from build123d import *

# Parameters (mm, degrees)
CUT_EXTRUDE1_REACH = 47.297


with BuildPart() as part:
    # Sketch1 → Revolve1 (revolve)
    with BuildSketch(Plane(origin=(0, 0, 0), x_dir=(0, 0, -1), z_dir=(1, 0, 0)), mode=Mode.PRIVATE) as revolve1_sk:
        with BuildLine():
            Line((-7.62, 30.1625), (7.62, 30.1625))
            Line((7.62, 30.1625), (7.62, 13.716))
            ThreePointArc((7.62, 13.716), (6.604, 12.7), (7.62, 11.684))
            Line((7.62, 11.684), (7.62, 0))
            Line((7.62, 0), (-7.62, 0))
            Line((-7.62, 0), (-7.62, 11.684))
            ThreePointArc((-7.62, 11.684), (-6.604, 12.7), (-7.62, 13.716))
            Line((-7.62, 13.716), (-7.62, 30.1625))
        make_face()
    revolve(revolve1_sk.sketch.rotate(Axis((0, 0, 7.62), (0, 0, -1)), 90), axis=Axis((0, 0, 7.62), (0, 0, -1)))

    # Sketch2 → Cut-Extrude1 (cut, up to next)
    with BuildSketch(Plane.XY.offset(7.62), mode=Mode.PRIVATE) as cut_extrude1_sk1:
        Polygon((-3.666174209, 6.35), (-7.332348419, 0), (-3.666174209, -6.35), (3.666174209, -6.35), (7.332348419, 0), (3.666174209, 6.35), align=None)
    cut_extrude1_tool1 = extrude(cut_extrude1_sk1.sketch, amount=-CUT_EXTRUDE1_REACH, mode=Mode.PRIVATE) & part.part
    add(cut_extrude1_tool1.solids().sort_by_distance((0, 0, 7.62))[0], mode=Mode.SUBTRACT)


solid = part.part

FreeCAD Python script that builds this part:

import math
import FreeCAD as App
import Part
import Sketcher

V = App.Vector
Q = App.Units.Quantity


def add_polygon(sketch, points):
    """Adds a closed chain of lines whose ends are joined by coincident constraints."""
    first, n = sketch.GeometryCount, len(points)
    for a, b in zip(points, points[1:] + points[:1]):
        sketch.addGeometry(Part.LineSegment(App.Vector(*a, 0), App.Vector(*b, 0)), False)
    for i in range(n):
        sketch.addConstraint(Sketcher.Constraint("Coincident", first + i, 2, first + (i + 1) % n, 1))

doc = App.newDocument("Part")
params = doc.addObject("Spreadsheet::Sheet", "Params")
for row, (alias, value) in enumerate([
    ("sketch1_radius", "0.04 in"),
    ("sketch1_height", "0.6 in"),
    ("sketch1_width", "0.46 in"),
    ("revolution_angle", "360 deg"),
], start=1):
    params.set(f"A{row}", alias)
    params.set(f"B{row}", "=" + value)
    params.setAlias(f"B{row}", alias)

body = doc.addObject("PartDesign::Body", "Body")

sketch1 = doc.addObject("Sketcher::SketchObject", "Sketch")
body.addObject(sketch1)
sketch1.AttachmentSupport = (doc.YZ_Plane, [""])
sketch1.MapMode = "FlatFace"
sketch1.addGeometry([
    Part.LineSegment(V(30.2, -7.6, 0), V(30.2, 7.6, 0)),
    Part.LineSegment(V(30.2, 7.6, 0), V(13.7, 7.6, 0)),
    Part.ArcOfCircle(Part.Circle(V(12.7, 7.6, 0), V(0, 0, 1), 1), math.radians(180), math.radians(360)),
    Part.LineSegment(V(11.7, 7.6, 0), V(0, 7.6, 0)),
    Part.LineSegment(V(0, 7.6, 0), V(0, -7.6, 0)),
    Part.LineSegment(V(0, -7.6, 0), V(11.7, -7.6, 0)),
    Part.ArcOfCircle(Part.Circle(V(12.7, -7.6, 0), V(0, 0, 1), 1), math.radians(0), math.radians(180)),
    Part.LineSegment(V(13.7, -7.6, 0), V(30.2, -7.6, 0)),
], False)
sketch1.addConstraint([
    Sketcher.Constraint("Coincident", 0, 2, 1, 1),
    Sketcher.Constraint("Coincident", 1, 2, 2, 2),
    Sketcher.Constraint("Coincident", 2, 1, 3, 1),
    Sketcher.Constraint("Coincident", 3, 2, 4, 1),
    Sketcher.Constraint("Coincident", 4, 2, 5, 1),
    Sketcher.Constraint("Coincident", 5, 2, 6, 2),
    Sketcher.Constraint("Coincident", 6, 1, 7, 1),
    Sketcher.Constraint("Coincident", 7, 2, 0, 1),
    Sketcher.Constraint("Vertical", 0),
    Sketcher.Constraint("Horizontal", 1),
    Sketcher.Constraint("Horizontal", 3),
    Sketcher.Constraint("Vertical", 4),
    Sketcher.Constraint("Horizontal", 5),
    Sketcher.Constraint("Horizontal", 7),
    Sketcher.Constraint("Equal", 2, 6),
    Sketcher.Constraint("Symmetric", 3, 2, 4, 2, -1, 1),
    Sketcher.Constraint("Symmetric", 2, 3, 6, 3, -1),
    Sketcher.Constraint("Horizontal", 2, 3, 0, 2),
    Sketcher.Constraint("Horizontal", 1, 2, 2, 1),
    Sketcher.Constraint("Horizontal", 5, 2, 6, 1),
    Sketcher.Constraint("Radius", 2, Q("0.04 in")),
    Sketcher.Constraint("DistanceY", 0, 1, 0, 2, Q("0.6 in")),
    Sketcher.Constraint("DistanceX", 3, 2, 3, 1, Q("0.46 in")),
    Sketcher.Constraint("DistanceX", 1, 2, 1, 1, Q("0.6475 in")),
])
sketch1.setExpression("Constraints[20]", "Params.sketch1_radius")
sketch1.setExpression("Constraints[21]", "Params.sketch1_height")
sketch1.setExpression("Constraints[22]", "Params.sketch1_width")
revolution = doc.addObject("PartDesign::Revolution", "Revolution")
body.addObject(revolution)
revolution.Profile = sketch1
revolution.ReferenceAxis = (sketch1, ["V_Axis"])
revolution.setExpression("Angle", "Params.revolution_angle")

sketch2 = doc.addObject("Sketcher::SketchObject", "Sketch001")
body.addObject(sketch2)
sketch2.AttachmentSupport = (doc.XY_Plane, [""])
sketch2.MapMode = "FlatFace"
sketch2.AttachmentOffset = App.Placement(V(0, 0, 0.3 * 25.4), App.Rotation())
add_polygon(sketch2, [(-4, 6), (-7, 0), (-4, -6), (4, -6), (7, 0), (4, 6)])
sketch2.addConstraint([
    Sketcher.Constraint("Horizontal", 2),
    Sketcher.Constraint("Horizontal", 5),
    Sketcher.Constraint("Symmetric", 0, 2, 3, 2, -1, 1),
    Sketcher.Constraint("Symmetric", 1, 2, 4, 2, -1, 1),
    Sketcher.Constraint("PointOnObject", 0, 2, -1),
    Sketcher.Constraint("Parallel", 0, 3),
    Sketcher.Constraint("Vertical", 2, 2, 4, 2),
    Sketcher.Constraint("Angle", 0, Q("-120 deg")),
    Sketcher.Constraint("DistanceY", 2, 2, 4, 2, Q("0.5 in")),
    Sketcher.Constraint("DistanceX", 2, 1, 2, 2, 7.332348),
])
pocket1 = doc.addObject("PartDesign::Pocket", "Pocket")
body.addObject(pocket1)
pocket1.Profile = sketch2
pocket1.Type = "UpToFirst"

doc.recompute()
